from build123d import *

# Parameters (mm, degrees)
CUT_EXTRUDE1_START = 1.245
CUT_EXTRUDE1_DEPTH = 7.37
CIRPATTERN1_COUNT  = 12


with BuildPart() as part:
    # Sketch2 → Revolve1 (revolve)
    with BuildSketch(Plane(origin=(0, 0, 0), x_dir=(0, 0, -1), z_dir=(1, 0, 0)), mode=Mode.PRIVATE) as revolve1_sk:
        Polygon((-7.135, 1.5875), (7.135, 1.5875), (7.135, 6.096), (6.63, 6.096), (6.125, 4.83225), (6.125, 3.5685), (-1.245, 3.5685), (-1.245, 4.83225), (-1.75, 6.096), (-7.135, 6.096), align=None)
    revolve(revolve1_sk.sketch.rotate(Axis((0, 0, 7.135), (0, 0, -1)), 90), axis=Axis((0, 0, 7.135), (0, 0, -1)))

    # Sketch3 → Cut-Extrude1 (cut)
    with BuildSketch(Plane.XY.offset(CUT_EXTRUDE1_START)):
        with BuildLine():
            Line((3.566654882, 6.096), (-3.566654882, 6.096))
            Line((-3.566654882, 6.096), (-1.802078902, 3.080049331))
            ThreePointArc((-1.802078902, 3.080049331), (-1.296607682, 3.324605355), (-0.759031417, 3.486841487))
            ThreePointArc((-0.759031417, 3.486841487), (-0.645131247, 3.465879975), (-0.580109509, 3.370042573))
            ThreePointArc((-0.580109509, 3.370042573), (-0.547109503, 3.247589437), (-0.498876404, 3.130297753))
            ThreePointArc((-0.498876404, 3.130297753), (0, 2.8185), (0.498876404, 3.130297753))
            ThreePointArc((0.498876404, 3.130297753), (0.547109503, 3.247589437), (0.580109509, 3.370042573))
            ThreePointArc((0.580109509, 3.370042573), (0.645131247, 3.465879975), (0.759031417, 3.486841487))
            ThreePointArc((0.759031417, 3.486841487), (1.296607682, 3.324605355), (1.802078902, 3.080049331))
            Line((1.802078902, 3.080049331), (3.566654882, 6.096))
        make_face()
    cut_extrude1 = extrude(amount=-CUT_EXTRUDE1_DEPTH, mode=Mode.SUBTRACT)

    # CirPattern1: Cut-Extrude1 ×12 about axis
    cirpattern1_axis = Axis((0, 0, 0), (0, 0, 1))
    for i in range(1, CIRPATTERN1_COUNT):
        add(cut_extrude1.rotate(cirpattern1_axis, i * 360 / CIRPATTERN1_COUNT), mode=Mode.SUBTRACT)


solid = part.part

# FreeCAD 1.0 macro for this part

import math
import FreeCAD as App
import Part
import Sketcher

doc = App.newDocument("Part")
body = doc.addObject("PartDesign::Body", "Body")

# Sketch on YZ plane
sketch1 = body.newObject("Sketcher::SketchObject", "Sketch")
sketch1.AttachmentSupport = (doc.getObject("YZ_Plane"), [""])
sketch1.MapMode = "FlatFace"
sketch1.addGeometry(Part.LineSegment(App.Vector(1.6, 7.1, 0), App.Vector(1.6, -7.1, 0)), False)
sketch1.addGeometry(Part.LineSegment(App.Vector(1.6, -7.1, 0), App.Vector(6.1, -7.1, 0)), False)
sketch1.addGeometry(Part.LineSegment(App.Vector(6.1, -7.1, 0), App.Vector(6.1, -6.6, 0)), False)
sketch1.addGeometry(Part.LineSegment(App.Vector(6.1, -6.6, 0), App.Vector(4.8, -6.1, 0)), False)
sketch1.addGeometry(Part.LineSegment(App.Vector(4.8, -6.1, 0), App.Vector(3.6, -6.1, 0)), False)
sketch1.addGeometry(Part.LineSegment(App.Vector(3.6, -6.1, 0), App.Vector(3.6, 1.2, 0)), False)
sketch1.addGeometry(Part.LineSegment(App.Vector(3.6, 1.2, 0), App.Vector(4.8, 1.2, 0)), False)
sketch1.addGeometry(Part.LineSegment(App.Vector(4.8, 1.2, 0), App.Vector(6.1, 1.8, 0)), False)
sketch1.addGeometry(Part.LineSegment(App.Vector(6.1, 1.8, 0), App.Vector(6.1, 7.1, 0)), False)
sketch1.addGeometry(Part.LineSegment(App.Vector(6.1, 7.1, 0), App.Vector(1.6, 7.1, 0)), False)
sketch1.addConstraint(Sketcher.Constraint("Coincident", 0, 2, 1, 1))
sketch1.addConstraint(Sketcher.Constraint("Coincident", 1, 2, 2, 1))
sketch1.addConstraint(Sketcher.Constraint("Coincident", 2, 2, 3, 1))
sketch1.addConstraint(Sketcher.Constraint("Coincident", 3, 2, 4, 1))
sketch1.addConstraint(Sketcher.Constraint("Coincident", 4, 2, 5, 1))
sketch1.addConstraint(Sketcher.Constraint("Coincident", 5, 2, 6, 1))
sketch1.addConstraint(Sketcher.Constraint("Coincident", 6, 2, 7, 1))
sketch1.addConstraint(Sketcher.Constraint("Coincident", 7, 2, 8, 1))
sketch1.addConstraint(Sketcher.Constraint("Coincident", 8, 2, 9, 1))
sketch1.addConstraint(Sketcher.Constraint("Coincident", 9, 2, 0, 1))
sketch1.addConstraint(Sketcher.Constraint("Vertical", 0))
sketch1.addConstraint(Sketcher.Constraint("Horizontal", 1))
sketch1.addConstraint(Sketcher.Constraint("Vertical", 2))
sketch1.addConstraint(Sketcher.Constraint("Horizontal", 4))
sketch1.addConstraint(Sketcher.Constraint("Vertical", 5))
sketch1.addConstraint(Sketcher.Constraint("Horizontal", 6))
sketch1.addConstraint(Sketcher.Constraint("Vertical", 8))
sketch1.addConstraint(Sketcher.Constraint("Horizontal", 9))
sketch1.addConstraint(Sketcher.Constraint("Symmetric", 1, 2, 8, 2, -1))
sketch1.addConstraint(Sketcher.Constraint("Vertical", 3, 2, 6, 2))
sketch1.addConstraint(Sketcher.Constraint("Equal", 3, 7))
sketch1.addConstraint(Sketcher.Constraint("DistanceY", 0, 2, 0, 1, 14.27))
sketch1.addConstraint(Sketcher.Constraint("DistanceY", 5, 1, 5, 2, 7.37))
sketch1.addConstraint(Sketcher.Constraint("DistanceY", 2, 1, 2, 2, 0.505))
sketch1.addConstraint(Sketcher.Constraint("DistanceY", 8, 1, 8, 2, 5.385))
sketch1.addConstraint(Sketcher.Constraint("DistanceX", 1, 1, 1, 2, 4.5085))
sketch1.addConstraint(Sketcher.Constraint("DistanceX", -1, 1, 1, 2, 6.096))
sketch1.addConstraint(Sketcher.Constraint("DistanceX", 0, 2, 4, 2, 1.981))
sketch1.addConstraint(Sketcher.Constraint("DistanceX", 4, 2, 4, 1, 1.26375))
revolution = body.newObject("PartDesign::Revolution", "Revolution")
revolution.Profile = sketch1
revolution.ReferenceAxis = (sketch1, ["V_Axis"])
revolution.Angle = 360

# Sketch on XY plane
sketch2 = body.newObject("Sketcher::SketchObject", "Sketch001")
sketch2.AttachmentSupport = (doc.getObject("XY_Plane"), [""])
sketch2.MapMode = "FlatFace"
sketch2.AttachmentOffset = App.Placement(App.Vector(0, 0, 1.245), App.Rotation())
sketch2.addGeometry(Part.LineSegment(App.Vector(3.57, 6.1, 0), App.Vector(-3.57, 6.1, 0)), False)
sketch2.addGeometry(Part.LineSegment(App.Vector(-3.57, 6.1, 0), App.Vector(-1.8, 3.08, 0)), False)
sketch2.addGeometry(Part.ArcOfCircle(Part.Circle(App.Vector(0, 0, 0), App.Vector(0, 0, 1), 3.57), math.radians(102.28), math.radians(120.33)), False)
sketch2.addGeometry(Part.ArcOfCircle(Part.Circle(App.Vector(-0.73, 3.34, 0), App.Vector(0, 0, 1), 0.15), math.radians(11), math.radians(102)), False)
sketch2.addGeometry(Part.ArcOfCircle(Part.Circle(App.Vector(0.4, 3.57, 0), App.Vector(0, 0, 1), 1), math.radians(-168.55), math.radians(-154.01)), False)
sketch2.addGeometry(Part.ArcOfCircle(Part.Circle(App.Vector(0, 3.37, 0), App.Vector(0, 0, 1), 0.55), math.radians(-154), math.radians(-26)), False)
sketch2.addGeometry(Part.ArcOfCircle(Part.Circle(App.Vector(-0.4, 3.57, 0), App.Vector(0, 0, 1), 1), math.radians(-25.99), math.radians(-11.45)), False)
sketch2.addGeometry(Part.ArcOfCircle(Part.Circle(App.Vector(0.73, 3.34, 0), App.Vector(0, 0, 1), 0.15), math.radians(78), math.radians(169)), False)
sketch2.addGeometry(Part.ArcOfCircle(Part.Circle(App.Vector(0, 0, 0), App.Vector(0, 0, 1), 3.57), math.radians(59.67), math.radians(77.72)), False)
sketch2.addGeometry(Part.LineSegment(App.Vector(1.8, 3.08, 0), App.Vector(3.57, 6.1, 0)), False)
sketch2.addConstraint(Sketcher.Constraint("Coincident", 0, 2, 1, 1))
sketch2.addConstraint(Sketcher.Constraint("Coincident", 1, 2, 2, 2))
sketch2.addConstraint(Sketcher.Constraint("Tangent", 2, 1, 3, 2))
sketch2.addConstraint(Sketcher.Constraint("Tangent", 3, 1, 4, 1))
sketch2.addConstraint(Sketcher.Constraint("Tangent", 4, 2, 5, 1))
sketch2.addConstraint(Sketcher.Constraint("Tangent", 5, 2, 6, 1))
sketch2.addConstraint(Sketcher.Constraint("Tangent", 6, 2, 7, 2))
sketch2.addConstraint(Sketcher.Constraint("Tangent", 7, 1, 8, 2))
sketch2.addConstraint(Sketcher.Constraint("Coincident", 8, 1, 9, 1))
sketch2.addConstraint(Sketcher.Constraint("Coincident", 9, 2, 0, 1))
sketch2.addConstraint(Sketcher.Constraint("Horizontal", 0))
sketch2.addConstraint(Sketcher.Constraint("Coincident", 2, 3, -1, 1))
sketch2.addConstraint(Sketcher.Constraint("Coincident", 8, 3, -1, 1))
sketch2.addConstraint(Sketcher.Constraint("Equal", 4, 6))
sketch2.addConstraint(Sketcher.Constraint("Equal", 3, 7))
sketch2.addConstraint(Sketcher.Constraint("Equal", 2, 8))
sketch2.addConstraint(Sketcher.Constraint("Symmetric", 4, 3, 6, 3, -2))
sketch2.addConstraint(Sketcher.Constraint("Horizontal", 1, 2, 8, 1))
sketch2.addConstraint(Sketcher.Constraint("Equal", 1, 9))
sketch2.addConstraint(Sketcher.Constraint("Radius", 4, 1.0))
sketch2.addConstraint(Sketcher.Constraint("Radius", 3, 0.15))
sketch2.addConstraint(Sketcher.Constraint("Radius", 5, 0.555))
sketch2.addConstraint(Sketcher.Constraint("DistanceX", -1, 1, 4, 3, 0.4))
sketch2.addConstraint(Sketcher.Constraint("Radius", 2, 3.5685))
sketch2.addConstraint(Sketcher.Constraint("DistanceY", -1, 1, 0, 2, 6.096))
sketch2.addConstraint(Sketcher.Constraint("DistanceX", 0, 2, 0, 1, 7.13331))
sketch2.addConstraint(Sketcher.Constraint("DistanceY", -1, 1, 4, 3, 3.5685))
sketch2.addConstraint(Sketcher.Constraint("DistanceX", 1, 2, -1, 1, 1.802079))
pocket1 = body.newObject("PartDesign::Pocket", "Pocket")
pocket1.Profile = sketch2
pocket1.Length = 7.37
doc.recompute()

polarpattern = body.newObject("PartDesign::PolarPattern", "PolarPattern")
polarpattern.Originals = [pocket1]
polarpattern.Axis = (doc.getObject("Z_Axis"), [""])
polarpattern.Angle = 360
polarpattern.Occurrences = 12
body.Tip = polarpattern

doc.recompute()
